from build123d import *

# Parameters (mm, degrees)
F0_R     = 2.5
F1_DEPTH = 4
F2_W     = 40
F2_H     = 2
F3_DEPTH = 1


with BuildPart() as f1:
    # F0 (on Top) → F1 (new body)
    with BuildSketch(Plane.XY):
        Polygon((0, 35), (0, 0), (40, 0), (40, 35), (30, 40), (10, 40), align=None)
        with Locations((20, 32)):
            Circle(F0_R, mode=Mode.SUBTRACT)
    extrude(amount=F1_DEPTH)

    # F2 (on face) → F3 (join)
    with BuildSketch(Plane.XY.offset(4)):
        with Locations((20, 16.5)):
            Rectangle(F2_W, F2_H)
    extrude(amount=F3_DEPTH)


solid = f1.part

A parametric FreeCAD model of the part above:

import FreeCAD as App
import Part
import Sketcher
from FreeCAD import Vector


def add_polygon(sketch, points):
    """Adds a closed chain of lines whose ends are joined by coincident constraints."""
    first, n = sketch.GeometryCount, len(points)
    for a, b in zip(points, points[1:] + points[:1]):
        sketch.addGeometry(Part.LineSegment(App.Vector(*a, 0), App.Vector(*b, 0)), False)
    for i in range(n):
        sketch.addConstraint(Sketcher.Constraint("Coincident", first + i, 2, first + (i + 1) % n, 1))

doc = App.newDocument("Part")
body = doc.addObject("PartDesign::Body", "Body")

sketch1 = body.newObject("Sketcher::SketchObject", "Sketch")
sketch1.AttachmentSupport = (doc.getObject("XY_Plane"), [""])
sketch1.MapMode = "FlatFace"
add_polygon(sketch1, [(0, 35), (0, 0), (40, 0), (40, 35), (30, 40), (10, 40)])
sketch1.addGeometry(Part.Circle(Vector(20, 32, 0), Vector(0, 0, 1), 2.5), False)
sketch1.addConstraint([
    Sketcher.Constraint("Vertical", 0),
    Sketcher.Constraint("Horizontal", 1),
    Sketcher.Constraint("Vertical", 2),
    Sketcher.Constraint("Horizontal", 4),
    Sketcher.Constraint("Coincident", 0, 2, -1, 1),
    Sketcher.Constraint("Horizontal", 2, 2, 5, 2),
    Sketcher.Constraint("Equal", 3, 5),
    Sketcher.Constraint("Diameter", 6, 5.0),
    Sketcher.Constraint("DistanceX", 1, 1, 1, 2, 40.0),
    Sketcher.Constraint("DistanceX", 4, 2, 4, 1, 20.0),
    Sketcher.Constraint("DistanceY", 0, 2, 0, 1, 35.0),
    Sketcher.Constraint("DistanceX", -1, 1, 6, 3, 20.0),
    Sketcher.Constraint("DistanceY", -1, 1, 6, 3, 32.0),
    Sketcher.Constraint("DistanceY", -1, 1, 3, 2, 40.0),
])
pad1 = body.newObject("PartDesign::Pad", "Pad")
pad1.Profile = sketch1
pad1.Length = 4

sketch2 = body.newObject("Sketcher::SketchObject", "Sketch001")
sketch2.AttachmentSupport = (doc.getObject("XY_Plane"), [""])
sketch2.MapMode = "FlatFace"
sketch2.AttachmentOffset = App.Placement(Vector(0, 0, 4), App.Rotation())
add_polygon(sketch2, [(0, 17.5), (0, 15.5), (40, 15.5), (40, 17.5)])
sketch2.addConstraint([
    Sketcher.Constraint("Vertical", 0),
    Sketcher.Constraint("Horizontal", 1),
    Sketcher.Constraint("Vertical", 2),
    Sketcher.Constraint("Horizontal", 3),
    Sketcher.Constraint("PointOnObject", 0, 2, -2),
    Sketcher.Constraint("DistanceX", 1, 1, 1, 2, 40.0),
    Sketcher.Constraint("DistanceY", 0, 2, 0, 1, 2.0),
    Sketcher.Constraint("DistanceY", -1, 1, 0, 2, 15.5),
])
pad2 = body.newObject("PartDesign::Pad", "Pad001")
pad2.Profile = sketch2
pad2.Length = 1

doc.recompute()
